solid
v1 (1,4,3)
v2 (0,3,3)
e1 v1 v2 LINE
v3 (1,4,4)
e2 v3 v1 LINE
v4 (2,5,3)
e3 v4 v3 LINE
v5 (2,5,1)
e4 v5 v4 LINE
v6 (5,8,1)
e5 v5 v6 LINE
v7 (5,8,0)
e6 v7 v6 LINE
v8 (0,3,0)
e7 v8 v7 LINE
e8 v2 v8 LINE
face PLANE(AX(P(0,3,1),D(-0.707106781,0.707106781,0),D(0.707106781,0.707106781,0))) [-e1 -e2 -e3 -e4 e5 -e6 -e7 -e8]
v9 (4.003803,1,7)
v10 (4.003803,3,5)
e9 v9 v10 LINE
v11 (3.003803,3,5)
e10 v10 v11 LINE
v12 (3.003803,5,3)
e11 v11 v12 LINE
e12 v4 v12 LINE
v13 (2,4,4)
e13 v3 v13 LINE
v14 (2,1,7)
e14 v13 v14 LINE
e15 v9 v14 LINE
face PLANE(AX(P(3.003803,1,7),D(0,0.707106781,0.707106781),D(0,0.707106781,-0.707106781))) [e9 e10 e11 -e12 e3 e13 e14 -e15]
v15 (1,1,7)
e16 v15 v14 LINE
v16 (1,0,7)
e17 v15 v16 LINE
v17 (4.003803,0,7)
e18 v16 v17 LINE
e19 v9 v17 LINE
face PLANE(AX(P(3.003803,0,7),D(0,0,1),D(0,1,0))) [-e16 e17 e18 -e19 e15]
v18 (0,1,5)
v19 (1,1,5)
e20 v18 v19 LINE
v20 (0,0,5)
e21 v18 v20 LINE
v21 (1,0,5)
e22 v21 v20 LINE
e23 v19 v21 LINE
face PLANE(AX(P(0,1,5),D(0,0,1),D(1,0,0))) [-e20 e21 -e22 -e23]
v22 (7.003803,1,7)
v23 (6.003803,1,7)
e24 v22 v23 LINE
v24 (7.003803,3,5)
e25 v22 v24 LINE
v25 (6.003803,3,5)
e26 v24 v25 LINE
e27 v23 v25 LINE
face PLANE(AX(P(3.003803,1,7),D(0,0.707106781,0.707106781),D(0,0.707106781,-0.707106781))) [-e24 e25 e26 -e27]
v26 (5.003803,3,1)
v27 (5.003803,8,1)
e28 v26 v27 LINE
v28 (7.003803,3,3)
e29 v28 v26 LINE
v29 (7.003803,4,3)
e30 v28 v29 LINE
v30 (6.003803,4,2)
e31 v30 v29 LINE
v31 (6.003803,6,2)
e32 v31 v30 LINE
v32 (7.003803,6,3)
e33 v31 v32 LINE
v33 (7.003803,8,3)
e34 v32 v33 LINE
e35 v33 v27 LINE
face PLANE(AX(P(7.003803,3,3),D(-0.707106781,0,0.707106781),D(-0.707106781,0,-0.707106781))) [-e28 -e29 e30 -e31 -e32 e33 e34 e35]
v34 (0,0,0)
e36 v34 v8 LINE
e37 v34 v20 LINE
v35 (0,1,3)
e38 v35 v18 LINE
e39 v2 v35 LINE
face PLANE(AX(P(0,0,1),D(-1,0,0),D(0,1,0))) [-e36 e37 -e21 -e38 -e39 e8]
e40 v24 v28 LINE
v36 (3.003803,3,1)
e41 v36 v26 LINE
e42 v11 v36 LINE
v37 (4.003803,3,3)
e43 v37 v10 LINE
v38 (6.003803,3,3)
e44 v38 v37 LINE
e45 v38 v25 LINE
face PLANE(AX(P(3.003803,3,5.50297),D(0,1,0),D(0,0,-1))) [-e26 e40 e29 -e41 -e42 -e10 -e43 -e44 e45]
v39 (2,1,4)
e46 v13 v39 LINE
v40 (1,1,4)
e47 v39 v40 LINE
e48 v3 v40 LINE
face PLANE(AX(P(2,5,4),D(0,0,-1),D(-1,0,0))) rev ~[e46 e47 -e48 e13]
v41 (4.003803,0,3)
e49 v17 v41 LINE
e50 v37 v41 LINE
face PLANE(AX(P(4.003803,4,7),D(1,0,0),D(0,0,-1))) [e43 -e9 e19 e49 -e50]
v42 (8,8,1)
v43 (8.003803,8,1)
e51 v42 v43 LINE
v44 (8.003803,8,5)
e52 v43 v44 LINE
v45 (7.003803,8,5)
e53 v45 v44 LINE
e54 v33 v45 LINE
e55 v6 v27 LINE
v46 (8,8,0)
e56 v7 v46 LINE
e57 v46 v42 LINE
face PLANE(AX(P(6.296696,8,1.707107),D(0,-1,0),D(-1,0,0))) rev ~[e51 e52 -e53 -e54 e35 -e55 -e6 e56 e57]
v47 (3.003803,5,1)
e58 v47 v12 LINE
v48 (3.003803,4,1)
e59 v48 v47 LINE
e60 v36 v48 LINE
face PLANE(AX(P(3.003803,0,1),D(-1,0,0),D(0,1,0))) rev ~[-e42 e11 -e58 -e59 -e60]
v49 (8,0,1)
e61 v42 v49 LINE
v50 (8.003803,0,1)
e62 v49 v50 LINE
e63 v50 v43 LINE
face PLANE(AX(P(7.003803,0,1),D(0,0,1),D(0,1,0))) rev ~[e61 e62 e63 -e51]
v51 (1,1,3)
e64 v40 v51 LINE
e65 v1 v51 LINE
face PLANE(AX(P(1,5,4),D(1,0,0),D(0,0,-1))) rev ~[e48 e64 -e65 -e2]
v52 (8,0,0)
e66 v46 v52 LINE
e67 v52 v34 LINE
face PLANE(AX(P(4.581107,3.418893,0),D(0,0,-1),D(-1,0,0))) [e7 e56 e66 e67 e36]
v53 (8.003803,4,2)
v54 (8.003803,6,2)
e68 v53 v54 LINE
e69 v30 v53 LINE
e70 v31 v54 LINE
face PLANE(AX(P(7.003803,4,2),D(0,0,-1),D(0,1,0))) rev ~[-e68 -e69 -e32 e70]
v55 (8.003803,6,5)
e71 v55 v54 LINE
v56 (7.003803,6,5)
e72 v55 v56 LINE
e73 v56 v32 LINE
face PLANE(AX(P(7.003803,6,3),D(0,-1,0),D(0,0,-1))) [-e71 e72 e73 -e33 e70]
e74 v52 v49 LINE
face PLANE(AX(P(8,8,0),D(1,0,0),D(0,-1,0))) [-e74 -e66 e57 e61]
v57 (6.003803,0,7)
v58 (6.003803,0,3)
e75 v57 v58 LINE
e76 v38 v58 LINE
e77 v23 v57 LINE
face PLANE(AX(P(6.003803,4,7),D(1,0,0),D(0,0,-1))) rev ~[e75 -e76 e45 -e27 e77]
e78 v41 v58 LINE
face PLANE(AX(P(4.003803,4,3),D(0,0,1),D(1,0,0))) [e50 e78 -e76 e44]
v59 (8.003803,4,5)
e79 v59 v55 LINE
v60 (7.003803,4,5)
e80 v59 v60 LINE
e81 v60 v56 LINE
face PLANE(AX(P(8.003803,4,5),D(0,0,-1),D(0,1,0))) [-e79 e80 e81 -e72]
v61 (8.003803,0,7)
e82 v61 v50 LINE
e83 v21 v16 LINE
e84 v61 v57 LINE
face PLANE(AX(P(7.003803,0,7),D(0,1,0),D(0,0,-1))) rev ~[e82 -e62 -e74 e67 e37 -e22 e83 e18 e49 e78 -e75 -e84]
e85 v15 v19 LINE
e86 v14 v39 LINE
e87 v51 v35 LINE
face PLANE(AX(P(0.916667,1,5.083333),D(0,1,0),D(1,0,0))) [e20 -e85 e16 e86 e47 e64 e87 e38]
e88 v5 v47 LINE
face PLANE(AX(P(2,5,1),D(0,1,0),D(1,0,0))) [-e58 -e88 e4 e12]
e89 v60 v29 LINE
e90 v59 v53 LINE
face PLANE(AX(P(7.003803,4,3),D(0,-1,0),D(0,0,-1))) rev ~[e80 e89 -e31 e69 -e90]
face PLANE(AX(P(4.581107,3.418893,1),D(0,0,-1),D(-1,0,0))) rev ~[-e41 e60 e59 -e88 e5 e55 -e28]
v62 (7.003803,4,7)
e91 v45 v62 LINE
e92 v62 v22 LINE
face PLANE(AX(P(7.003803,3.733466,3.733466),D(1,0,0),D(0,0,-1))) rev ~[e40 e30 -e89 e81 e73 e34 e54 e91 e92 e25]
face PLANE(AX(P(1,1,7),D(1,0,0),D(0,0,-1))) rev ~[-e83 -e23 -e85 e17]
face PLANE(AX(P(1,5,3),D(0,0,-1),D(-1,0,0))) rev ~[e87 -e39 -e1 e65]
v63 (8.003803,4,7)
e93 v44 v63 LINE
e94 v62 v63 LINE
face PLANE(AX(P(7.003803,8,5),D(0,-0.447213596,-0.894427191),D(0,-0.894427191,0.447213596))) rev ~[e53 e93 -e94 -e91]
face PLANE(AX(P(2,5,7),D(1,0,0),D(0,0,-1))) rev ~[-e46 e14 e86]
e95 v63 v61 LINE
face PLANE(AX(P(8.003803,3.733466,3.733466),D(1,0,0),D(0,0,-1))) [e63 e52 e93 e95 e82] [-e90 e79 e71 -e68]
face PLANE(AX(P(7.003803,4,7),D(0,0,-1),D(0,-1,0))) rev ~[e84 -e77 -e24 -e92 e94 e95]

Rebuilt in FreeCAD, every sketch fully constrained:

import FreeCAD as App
import Part
import Sketcher
Q = App.Units.Quantity


def add_polygon(sketch, points):
    """Adds a closed chain of lines whose ends are joined by coincident constraints."""
    first, n = sketch.GeometryCount, len(points)
    for a, b in zip(points, points[1:] + points[:1]):
        sketch.addGeometry(Part.LineSegment(App.Vector(*a, 0), App.Vector(*b, 0)), False)
    for i in range(n):
        sketch.addConstraint(Sketcher.Constraint("Coincident", first + i, 2, first + (i + 1) % n, 1))

doc = App.newDocument("Part")
body = doc.addObject("PartDesign::Body", "Body")

# Sketch on XY plane
sketch1 = body.newObject("Sketcher::SketchObject", "Sketch")
sketch1.AttachmentSupport = (doc.getObject("XY_Plane"), [""])
sketch1.MapMode = "FlatFace"
add_polygon(sketch1, [(0, 3), (0, 0), (8, 0), (8, 8), (5, 8)])  # lines 0-4
sketch1.addConstraint([
    Sketcher.Constraint("Vertical", 0),
    Sketcher.Constraint("Horizontal", 1),
    Sketcher.Constraint("Vertical", 2),
    Sketcher.Constraint("Horizontal", 3),
    Sketcher.Constraint("Coincident", 0, 2, -1, 1),
    Sketcher.Constraint("Equal", 3, 0),
    Sketcher.Constraint("Equal", 1, 2),
    Sketcher.Constraint("DistanceX", 1, 1, 1, 2, Q("8 mm")),
    Sketcher.Constraint("DistanceX", 3, 2, 3, 1, Q("3 mm")),
])
pad1 = body.newObject("PartDesign::Pad", "Pad")
pad1.Profile = sketch1
pad1.Length = 1

# Sketch on XY plane
sketch2 = body.newObject("Sketcher::SketchObject", "Sketch001")
sketch2.AttachmentSupport = (doc.getObject("XY_Plane"), [""])
sketch2.MapMode = "FlatFace"
sketch2.AttachmentOffset = App.Placement(App.Vector(0, 0, 1), App.Rotation())
add_polygon(sketch2, [(0, 3), (0, 0), (3, 0), (3, 5), (2, 5)])  # lines 0-4
sketch2.addConstraint([
    Sketcher.Constraint("Vertical", 0),
    Sketcher.Constraint("Horizontal", 1),
    Sketcher.Constraint("Vertical", 2),
    Sketcher.Constraint("Horizontal", 3),
    Sketcher.Constraint("Coincident", 0, 2, -1, 1),
    Sketcher.Constraint("DistanceY", 0, 2, 0, 1, Q("3 mm")),
    Sketcher.Constraint("DistanceY", 2, 1, 2, 2, Q("5 mm")),
    Sketcher.Constraint("Angle", 4, Q("-135 deg")),
    Sketcher.Constraint("DistanceX", 1, 1, 1, 2, Q("3.003803 mm")),
])
pad2 = body.newObject("PartDesign::Pad", "Pad001")
pad2.Profile = sketch2
pad2.Length = 6

# Sketch on YZ plane
sketch3 = body.newObject("Sketcher::SketchObject", "Sketch002")
sketch3.AttachmentSupport = (doc.getObject("YZ_Plane"), [""])
sketch3.MapMode = "FlatFace"
add_polygon(sketch3, [(5, 3), (1, 7), (5, 7)])  # lines 0-2
sketch3.addConstraint([
    Sketcher.Constraint("Horizontal", 1),
    Sketcher.Constraint("Vertical", 2),
    Sketcher.Constraint("Equal", 1, 2),
    Sketcher.Constraint("DistanceX", 1, 1, 1, 2, Q("4 mm")),
    Sketcher.Constraint("DistanceX", -1, 1, 0, 2, Q("1 mm")),
    Sketcher.Constraint("DistanceY", -1, 1, 0, 2, Q("7 mm")),
])
pocket1 = body.newObject("PartDesign::Pocket", "Pocket")
pocket1.Profile = sketch3
pocket1.Length = 4
pocket1.Reversed = True

# Sketch on XZ plane
sketch4 = body.newObject("Sketcher::SketchObject", "Sketch003")
sketch4.AttachmentSupport = (doc.getObject("XZ_Plane"), [""])
sketch4.MapMode = "FlatFace"
sketch4.AttachmentOffset = App.Placement(App.Vector(0, 0, -5), App.Rotation())
add_polygon(sketch4, [(1, 4), (1, 3), (0, 3), (0, 7), (2, 7), (2, 4)])  # lines 0-5
sketch4.addConstraint([
    Sketcher.Constraint("Vertical", 0),
    Sketcher.Constraint("Horizontal", 1),
    Sketcher.Constraint("Vertical", 2),
    Sketcher.Constraint("Horizontal", 3),
    Sketcher.Constraint("Vertical", 4),
    Sketcher.Constraint("Horizontal", 5),
    Sketcher.Constraint("PointOnObject", 1, 2, -2),
    Sketcher.Constraint("Equal", 1, 5),
    Sketcher.Constraint("Equal", 5, 0),
    Sketcher.Constraint("DistanceX", 1, 2, 1, 1, Q("1 mm")),
    Sketcher.Constraint("DistanceY", 2, 1, 2, 2, Q("4 mm")),
    Sketcher.Constraint("DistanceY", -1, 1, 0, 2, Q("3 mm")),
])
pocket2 = body.newObject("PartDesign::Pocket", "Pocket001")
pocket2.Profile = sketch4
pocket2.Length = 4
pocket2.Reversed = True

# Sketch on XZ plane
sketch5 = body.newObject("Sketcher::SketchObject", "Sketch004")
sketch5.AttachmentSupport = (doc.getObject("XZ_Plane"), [""])
sketch5.MapMode = "FlatFace"
sketch5.AttachmentOffset = App.Placement(App.Vector(0, 0, -1), App.Rotation())
add_polygon(sketch5, [(0, 5), (0, 7), (1, 7), (1, 5)])  # lines 0-3
sketch5.addConstraint([
    Sketcher.Constraint("Vertical", 0),
    Sketcher.Constraint("Horizontal", 1),
    Sketcher.Constraint("Vertical", 2),
    Sketcher.Constraint("Horizontal", 3),
    Sketcher.Constraint("PointOnObject", 0, 2, -2),
    Sketcher.Constraint("DistanceX", 1, 1, 1, 2, Q("1 mm")),
    Sketcher.Constraint("DistanceY", 0, 1, 0, 2, Q("2 mm")),
    Sketcher.Constraint("DistanceY", -1, 1, 0, 2, Q("7 mm")),
])
pocket3 = body.newObject("PartDesign::Pocket", "Pocket002")
pocket3.Profile = sketch5
pocket3.Length = 4
pocket3.Reversed = True

# Sketch on YZ plane
sketch6 = body.newObject("Sketcher::SketchObject", "Sketch005")
sketch6.AttachmentSupport = (doc.getObject("YZ_Plane"), [""])
sketch6.MapMode = "FlatFace"
sketch6.AttachmentOffset = App.Placement(App.Vector(0, 0, 3.003803), App.Rotation())
add_polygon(sketch6, [(1, 7), (0, 7), (0, 1), (4, 1), (4, 4)])  # lines 0-4
sketch6.addConstraint([
    Sketcher.Constraint("Horizontal", 0),
    Sketcher.Constraint("Vertical", 1),
    Sketcher.Constraint("Horizontal", 2),
    Sketcher.Constraint("Vertical", 3),
    Sketcher.Constraint("PointOnObject", 0, 2, -2),
    Sketcher.Constraint("DistanceX", 0, 2, 0, 1, Q("1 mm")),
    Sketcher.Constraint("DistanceX", 2, 1, 2, 2, Q("4 mm")),
    Sketcher.Constraint("DistanceY", 1, 2, 1, 1, Q("6 mm")),
    Sketcher.Constraint("DistanceY", 3, 1, 3, 2, Q("3 mm")),
    Sketcher.Constraint("DistanceY", -1, 1, 0, 2, Q("7 mm")),
])
pad3 = body.newObject("PartDesign::Pad", "Pad002")
pad3.Profile = sketch6
pad3.Length = 4

# Sketch on XZ plane
sketch7 = body.newObject("Sketcher::SketchObject", "Sketch006")
sketch7.AttachmentSupport = (doc.getObject("XZ_Plane"), [""])
sketch7.MapMode = "FlatFace"
sketch7.AttachmentOffset = App.Placement(App.Vector(0, 0, -4), App.Rotation())
add_polygon(sketch7, [(4, 3), (4, 7), (6, 7), (6, 3)])  # lines 0-3
sketch7.addConstraint([
    Sketcher.Constraint("Vertical", 0),
    Sketcher.Constraint("Horizontal", 1),
    Sketcher.Constraint("Vertical", 2),
    Sketcher.Constraint("Horizontal", 3),
    Sketcher.Constraint("DistanceX", 1, 1, 1, 2, Q("2 mm")),
    Sketcher.Constraint("DistanceY", 0, 1, 0, 2, Q("4 mm")),
    Sketcher.Constraint("DistanceY", -1, 1, 0, 2, Q("7 mm")),
    Sketcher.Constraint("DistanceX", -1, 1, 0, 2, Q("4.003803 mm")),
])
pocket4 = body.newObject("PartDesign::Pocket", "Pocket003")
pocket4.Profile = sketch7
pocket4.Length = 4
pocket4.Reversed = True

# Sketch on YZ plane
sketch8 = body.newObject("Sketcher::SketchObject", "Sketch007")
sketch8.AttachmentSupport = (doc.getObject("YZ_Plane"), [""])
sketch8.MapMode = "FlatFace"
sketch8.AttachmentOffset = App.Placement(App.Vector(0, 0, 7.003803), App.Rotation())
add_polygon(sketch8, [(0, 7), (0, 1), (8, 1), (8, 5), (4, 7)])  # lines 0-4
sketch8.addConstraint([
    Sketcher.Constraint("Vertical", 0),
    Sketcher.Constraint("Horizontal", 1),
    Sketcher.Constraint("Vertical", 2),
    Sketcher.Constraint("Horizontal", 4),
    Sketcher.Constraint("PointOnObject", 0, 2, -2),
    Sketcher.Constraint("Equal", 4, 2),
    Sketcher.Constraint("DistanceX", 1, 1, 1, 2, Q("8 mm")),
    Sketcher.Constraint("DistanceX", 4, 2, 4, 1, Q("4 mm")),
    Sketcher.Constraint("DistanceY", 0, 2, 0, 1, Q("6 mm")),
    Sketcher.Constraint("DistanceY", -1, 1, 0, 2, Q("1 mm")),
])
pad4 = body.newObject("PartDesign::Pad", "Pad003")
pad4.Profile = sketch8
pad4.Length = 1

# Sketch on YZ plane
sketch9 = body.newObject("Sketcher::SketchObject", "Sketch008")
sketch9.AttachmentSupport = (doc.getObject("YZ_Plane"), [""])
sketch9.MapMode = "FlatFace"
sketch9.AttachmentOffset = App.Placement(App.Vector(0, 0, 3.003803), App.Rotation())
add_polygon(sketch9, [(4, 5.5), (3, 5.5), (3, 1), (4, 1)])  # lines 0-3
sketch9.addConstraint([
    Sketcher.Constraint("Horizontal", 0),
    Sketcher.Constraint("Vertical", 1),
    Sketcher.Constraint("Horizontal", 2),
    Sketcher.Constraint("Vertical", 3),
    Sketcher.Constraint("DistanceX", 0, 2, 0, 1, Q("1 mm")),
    Sketcher.Constraint("DistanceX", -1, 1, 0, 2, Q("3 mm")),
    Sketcher.Constraint("DistanceY", -1, 1, 1, 2, Q("1 mm")),
    Sketcher.Constraint("DistanceY", 1, 2, 1, 1, Q("4.50297 mm")),
])
pocket5 = body.newObject("PartDesign::Pocket", "Pocket004")
pocket5.Profile = sketch9
pocket5.Length = 4
pocket5.Reversed = True

# Sketch on YZ plane
sketch10 = body.newObject("Sketcher::SketchObject", "Sketch009")
sketch10.AttachmentSupport = (doc.getObject("YZ_Plane"), [""])
sketch10.MapMode = "FlatFace"
sketch10.AttachmentOffset = App.Placement(App.Vector(0, 0, 8.003803), App.Rotation())
add_polygon(sketch10, [(6, 5), (4, 5), (4, 2), (6, 2)])  # lines 0-3
sketch10.addConstraint([
    Sketcher.Constraint("Horizontal", 0),
    Sketcher.Constraint("Vertical", 1),
    Sketcher.Constraint("Horizontal", 2),
    Sketcher.Constraint("Vertical", 3),
    Sketcher.Constraint("DistanceX", 0, 2, 0, 1, Q("2 mm")),
    Sketcher.Constraint("DistanceY", 1, 2, 1, 1, Q("3 mm")),
    Sketcher.Constraint("DistanceX", -1, 1, 0, 2, Q("4 mm")),
    Sketcher.Constraint("DistanceY", -1, 1, 0, 2, Q("5 mm")),
])
pocket6 = body.newObject("PartDesign::Pocket", "Pocket005")
pocket6.Profile = sketch10
pocket6.Length = 2

# Sketch on XZ plane
sketch11 = body.newObject("Sketcher::SketchObject", "Sketch010")
sketch11.AttachmentSupport = (doc.getObject("XZ_Plane"), [""])
sketch11.MapMode = "FlatFace"
sketch11.AttachmentOffset = App.Placement(App.Vector(0, 0, -3), App.Rotation())
add_polygon(sketch11, [(5, 1), (7, 3), (7, 1)])  # lines 0-2
sketch11.addConstraint([
    Sketcher.Constraint("Vertical", 1),
    Sketcher.Constraint("Horizontal", 2),
    Sketcher.Constraint("Equal", 2, 1),
    Sketcher.Constraint("DistanceX", 2, 2, 2, 1, Q("2 mm")),
    Sketcher.Constraint("DistanceY", -1, 1, 0, 2, Q("3 mm")),
    Sketcher.Constraint("DistanceX", -1, 1, 0, 2, Q("7.003803 mm")),
])
pad5 = body.newObject("PartDesign::Pad", "Pad004")
pad5.Profile = sketch11
pad5.Length = 5
pad5.Reversed = True

# Sketch on YZ plane
sketch12 = body.newObject("Sketcher::SketchObject", "Sketch011")
sketch12.AttachmentSupport = (doc.getObject("YZ_Plane"), [""])
sketch12.MapMode = "FlatFace"
sketch12.AttachmentOffset = App.Placement(App.Vector(0, 0, 7.003803), App.Rotation())
add_polygon(sketch12, [(6, 3), (4, 3), (4, 2), (6, 2)])  # lines 0-3
sketch12.addConstraint([
    Sketcher.Constraint("Horizontal", 0),
    Sketcher.Constraint("Vertical", 1),
    Sketcher.Constraint("Horizontal", 2),
    Sketcher.Constraint("Vertical", 3),
    Sketcher.Constraint("DistanceX", 0, 2, 0, 1, Q("2 mm")),
    Sketcher.Constraint("DistanceY", 1, 2, 1, 1, Q("1 mm")),
    Sketcher.Constraint("DistanceX", -1, 1, 0, 2, Q("4 mm")),
    Sketcher.Constraint("DistanceY", -1, 1, 0, 2, Q("3 mm")),
])
pocket7 = body.newObject("PartDesign::Pocket", "Pocket006")
pocket7.Profile = sketch12
pocket7.Length = 3

doc.recompute()
